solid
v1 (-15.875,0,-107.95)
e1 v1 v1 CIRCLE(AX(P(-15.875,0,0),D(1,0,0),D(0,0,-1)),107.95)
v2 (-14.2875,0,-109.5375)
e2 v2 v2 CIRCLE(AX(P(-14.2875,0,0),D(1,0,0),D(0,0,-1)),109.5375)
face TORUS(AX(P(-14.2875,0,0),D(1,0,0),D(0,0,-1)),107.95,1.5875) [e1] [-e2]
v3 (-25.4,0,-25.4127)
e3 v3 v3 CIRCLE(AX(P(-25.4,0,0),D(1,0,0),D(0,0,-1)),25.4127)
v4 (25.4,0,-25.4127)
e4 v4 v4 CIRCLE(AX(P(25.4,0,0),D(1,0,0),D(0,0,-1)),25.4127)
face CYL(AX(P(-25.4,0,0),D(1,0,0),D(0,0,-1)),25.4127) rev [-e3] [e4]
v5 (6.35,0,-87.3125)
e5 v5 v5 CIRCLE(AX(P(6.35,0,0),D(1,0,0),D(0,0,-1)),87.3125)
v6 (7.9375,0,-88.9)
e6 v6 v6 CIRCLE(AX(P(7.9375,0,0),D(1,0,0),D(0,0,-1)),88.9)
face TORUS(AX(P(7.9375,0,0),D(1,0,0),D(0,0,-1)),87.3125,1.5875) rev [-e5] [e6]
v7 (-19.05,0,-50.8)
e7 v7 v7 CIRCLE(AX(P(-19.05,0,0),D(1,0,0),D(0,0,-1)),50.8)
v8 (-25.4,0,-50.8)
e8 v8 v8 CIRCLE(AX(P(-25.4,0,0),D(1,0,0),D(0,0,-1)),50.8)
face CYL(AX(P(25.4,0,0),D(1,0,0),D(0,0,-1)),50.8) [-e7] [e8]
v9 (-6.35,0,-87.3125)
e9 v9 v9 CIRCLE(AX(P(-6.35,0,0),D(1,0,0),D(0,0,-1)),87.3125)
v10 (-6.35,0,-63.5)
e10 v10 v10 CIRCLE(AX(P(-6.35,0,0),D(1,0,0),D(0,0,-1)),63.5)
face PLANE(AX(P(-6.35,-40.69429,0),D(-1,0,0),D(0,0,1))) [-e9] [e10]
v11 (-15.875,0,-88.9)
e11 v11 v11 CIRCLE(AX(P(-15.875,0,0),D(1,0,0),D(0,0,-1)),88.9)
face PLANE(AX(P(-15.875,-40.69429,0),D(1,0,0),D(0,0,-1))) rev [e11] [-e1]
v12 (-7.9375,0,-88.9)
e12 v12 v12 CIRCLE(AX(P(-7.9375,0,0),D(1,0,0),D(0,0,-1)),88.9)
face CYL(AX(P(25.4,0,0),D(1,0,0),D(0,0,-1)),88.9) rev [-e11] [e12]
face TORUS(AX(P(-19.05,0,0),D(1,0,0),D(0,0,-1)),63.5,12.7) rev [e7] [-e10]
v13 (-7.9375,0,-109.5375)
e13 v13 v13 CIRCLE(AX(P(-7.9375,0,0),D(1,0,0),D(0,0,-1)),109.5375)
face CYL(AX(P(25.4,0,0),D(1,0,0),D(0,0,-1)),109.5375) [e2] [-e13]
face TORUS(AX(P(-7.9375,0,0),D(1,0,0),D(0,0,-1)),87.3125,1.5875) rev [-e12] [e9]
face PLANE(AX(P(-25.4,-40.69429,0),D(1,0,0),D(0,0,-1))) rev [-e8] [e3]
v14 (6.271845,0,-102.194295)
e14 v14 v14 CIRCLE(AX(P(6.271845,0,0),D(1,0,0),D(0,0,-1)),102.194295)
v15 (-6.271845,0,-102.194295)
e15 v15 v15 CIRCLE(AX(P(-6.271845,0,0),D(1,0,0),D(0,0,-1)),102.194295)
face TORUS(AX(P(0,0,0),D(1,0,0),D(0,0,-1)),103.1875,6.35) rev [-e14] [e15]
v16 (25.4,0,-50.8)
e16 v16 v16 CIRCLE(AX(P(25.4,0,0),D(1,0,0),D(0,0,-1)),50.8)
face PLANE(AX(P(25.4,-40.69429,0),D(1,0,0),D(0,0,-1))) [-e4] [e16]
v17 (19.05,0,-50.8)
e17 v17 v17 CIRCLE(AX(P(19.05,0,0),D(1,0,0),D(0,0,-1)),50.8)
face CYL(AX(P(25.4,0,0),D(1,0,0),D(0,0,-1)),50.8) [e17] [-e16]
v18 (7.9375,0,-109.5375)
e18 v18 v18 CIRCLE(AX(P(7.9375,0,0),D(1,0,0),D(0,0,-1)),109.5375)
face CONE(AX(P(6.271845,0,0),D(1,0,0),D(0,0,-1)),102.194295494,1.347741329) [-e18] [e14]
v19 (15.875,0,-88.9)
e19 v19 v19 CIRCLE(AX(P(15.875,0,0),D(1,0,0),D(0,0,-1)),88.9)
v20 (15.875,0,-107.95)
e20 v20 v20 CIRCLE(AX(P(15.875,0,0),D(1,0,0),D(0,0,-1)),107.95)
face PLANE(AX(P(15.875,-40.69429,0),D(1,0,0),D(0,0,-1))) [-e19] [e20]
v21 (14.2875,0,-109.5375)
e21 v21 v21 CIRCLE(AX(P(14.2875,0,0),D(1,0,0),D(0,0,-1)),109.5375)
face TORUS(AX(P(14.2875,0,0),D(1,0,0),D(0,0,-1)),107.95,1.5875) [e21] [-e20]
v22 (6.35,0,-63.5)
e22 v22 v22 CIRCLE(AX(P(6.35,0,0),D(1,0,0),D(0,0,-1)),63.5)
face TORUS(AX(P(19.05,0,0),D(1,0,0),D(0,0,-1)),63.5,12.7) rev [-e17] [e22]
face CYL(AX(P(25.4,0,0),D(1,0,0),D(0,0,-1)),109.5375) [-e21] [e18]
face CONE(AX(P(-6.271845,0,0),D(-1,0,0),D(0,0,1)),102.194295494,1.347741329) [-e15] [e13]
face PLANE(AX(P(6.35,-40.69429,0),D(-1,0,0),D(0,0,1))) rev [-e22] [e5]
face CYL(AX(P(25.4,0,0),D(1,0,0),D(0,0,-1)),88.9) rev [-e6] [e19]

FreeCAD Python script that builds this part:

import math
import FreeCAD as App
import Part
import Sketcher
from FreeCAD import Vector
Q = App.Units.Quantity

doc = App.newDocument("Part")
body = doc.addObject("PartDesign::Body", "Body")

sketch1 = body.newObject("Sketcher::SketchObject", "Sketch")
sketch1.AttachmentSupport = (doc.getObject("XY_Plane"), [""])
sketch1.MapMode = "FlatFace"
sketch1.addGeometry(Part.LineSegment(Vector(6.35, 63.5, 0), Vector(6.35, 87.3125, 0)), False)
sketch1.addGeometry(Part.ArcOfCircle(Part.Circle(Vector(7.9375, 87.3125, 0), Vector(0, 0, 1), 1.5875), math.radians(90), math.radians(180)), False)
sketch1.addGeometry(Part.LineSegment(Vector(7.9375, 88.9, 0), Vector(15.875, 88.9, 0)), False)
sketch1.addGeometry(Part.LineSegment(Vector(15.875, 88.9, 0), Vector(15.875, 107.95, 0)), False)
sketch1.addGeometry(Part.ArcOfCircle(Part.Circle(Vector(14.2875, 107.95, 0), Vector(0, 0, 1), 1.5875), math.radians(0), math.radians(90)), False)
sketch1.addGeometry(Part.LineSegment(Vector(14.2875, 109.5375, 0), Vector(7.9375, 109.5375, 0)), False)
sketch1.addGeometry(Part.LineSegment(Vector(7.9375, 109.5375, 0), Vector(6.271845, 102.194295, 0)), False)
sketch1.addGeometry(Part.ArcOfCircle(Part.Circle(Vector(0, 103.1875, 0), Vector(0, 0, 1), 6.35), math.radians(-171.00141), math.radians(-8.99859)), False)
sketch1.addGeometry(Part.LineSegment(Vector(-6.271845, 102.194295, 0), Vector(-7.9375, 109.5375, 0)), False)
sketch1.addGeometry(Part.LineSegment(Vector(-7.9375, 109.5375, 0), Vector(-14.2875, 109.5375, 0)), False)
sketch1.addGeometry(Part.ArcOfCircle(Part.Circle(Vector(-14.2875, 107.95, 0), Vector(0, 0, 1), 1.5875), math.radians(90), math.radians(180)), False)
sketch1.addGeometry(Part.LineSegment(Vector(-15.875, 107.95, 0), Vector(-15.875, 88.9, 0)), False)
sketch1.addGeometry(Part.LineSegment(Vector(-15.875, 88.9, 0), Vector(-7.9375, 88.9, 0)), False)
sketch1.addGeometry(Part.ArcOfCircle(Part.Circle(Vector(-7.9375, 87.3125, 0), Vector(0, 0, 1), 1.5875), math.radians(0), math.radians(90)), False)
sketch1.addGeometry(Part.LineSegment(Vector(-6.35, 87.3125, 0), Vector(-6.35, 63.5, 0)), False)
sketch1.addGeometry(Part.ArcOfCircle(Part.Circle(Vector(-19.05, 63.5, 0), Vector(0, 0, 1), 12.7), math.radians(-90), math.radians(0)), False)
sketch1.addGeometry(Part.LineSegment(Vector(-19.05, 50.8, 0), Vector(-25.4, 50.8, 0)), False)
sketch1.addGeometry(Part.LineSegment(Vector(-25.4, 50.8, 0), Vector(-25.4, 0, 0)), False)
sketch1.addGeometry(Part.LineSegment(Vector(-25.4, 0, 0), Vector(25.4, 0, 0)), False)
sketch1.addGeometry(Part.LineSegment(Vector(25.4, 0, 0), Vector(25.4, 50.8, 0)), False)
sketch1.addGeometry(Part.LineSegment(Vector(25.4, 50.8, 0), Vector(19.05, 50.8, 0)), False)
sketch1.addGeometry(Part.ArcOfCircle(Part.Circle(Vector(19.05, 63.5, 0), Vector(0, 0, 1), 12.7), math.radians(180), math.radians(270)), False)
sketch1.addConstraint(Sketcher.Constraint("Tangent", 0, 2, 1, 2))
sketch1.addConstraint(Sketcher.Constraint("Tangent", 1, 1, 2, 1))
sketch1.addConstraint(Sketcher.Constraint("Coincident", 2, 2, 3, 1))
sketch1.addConstraint(Sketcher.Constraint("Tangent", 3, 2, 4, 1))
sketch1.addConstraint(Sketcher.Constraint("Tangent", 4, 2, 5, 1))
sketch1.addConstraint(Sketcher.Constraint("Coincident", 5, 2, 6, 1))
sketch1.addConstraint(Sketcher.Constraint("Coincident", 6, 2, 7, 2))
sketch1.addConstraint(Sketcher.Constraint("Coincident", 7, 1, 8, 1))
sketch1.addConstraint(Sketcher.Constraint("Coincident", 8, 2, 9, 1))
sketch1.addConstraint(Sketcher.Constraint("Tangent", 9, 2, 10, 1))
sketch1.addConstraint(Sketcher.Constraint("Tangent", 10, 2, 11, 1))
sketch1.addConstraint(Sketcher.Constraint("Coincident", 11, 2, 12, 1))
sketch1.addConstraint(Sketcher.Constraint("Tangent", 12, 2, 13, 2))
sketch1.addConstraint(Sketcher.Constraint("Tangent", 13, 1, 14, 1))
sketch1.addConstraint(Sketcher.Constraint("Tangent", 14, 2, 15, 2))
sketch1.addConstraint(Sketcher.Constraint("Tangent", 15, 1, 16, 1))
sketch1.addConstraint(Sketcher.Constraint("Coincident", 16, 2, 17, 1))
sketch1.addConstraint(Sketcher.Constraint("Coincident", 17, 2, 18, 1))
sketch1.addConstraint(Sketcher.Constraint("Coincident", 18, 2, 19, 1))
sketch1.addConstraint(Sketcher.Constraint("Coincident", 19, 2, 20, 1))
sketch1.addConstraint(Sketcher.Constraint("Tangent", 20, 2, 21, 2))
sketch1.addConstraint(Sketcher.Constraint("Tangent", 21, 1, 0, 1))
sketch1.addConstraint(Sketcher.Constraint("Vertical", 0))
sketch1.addConstraint(Sketcher.Constraint("Horizontal", 2))
sketch1.addConstraint(Sketcher.Constraint("Vertical", 3))
sketch1.addConstraint(Sketcher.Constraint("Horizontal", 5))
sketch1.addConstraint(Sketcher.Constraint("Horizontal", 9))
sketch1.addConstraint(Sketcher.Constraint("Vertical", 11))
sketch1.addConstraint(Sketcher.Constraint("Horizontal", 12))
sketch1.addConstraint(Sketcher.Constraint("Vertical", 14))
sketch1.addConstraint(Sketcher.Constraint("Horizontal", 16))
sketch1.addConstraint(Sketcher.Constraint("Vertical", 17))
sketch1.addConstraint(Sketcher.Constraint("Horizontal", 18))
sketch1.addConstraint(Sketcher.Constraint("Vertical", 19))
sketch1.addConstraint(Sketcher.Constraint("Horizontal", 20))
sketch1.addConstraint(Sketcher.Constraint("Equal", 1, 4))
sketch1.addConstraint(Sketcher.Constraint("Equal", 4, 10))
sketch1.addConstraint(Sketcher.Constraint("Equal", 10, 13))
sketch1.addConstraint(Sketcher.Constraint("Equal", 15, 21))
sketch1.addConstraint(Sketcher.Constraint("Symmetric", 17, 2, 18, 2, -1, 1))
sketch1.addConstraint(Sketcher.Constraint("Symmetric", 4, 3, 10, 3, -2))
sketch1.addConstraint(Sketcher.Constraint("Symmetric", 1, 3, 13, 3, -2))
sketch1.addConstraint(Sketcher.Constraint("Symmetric", 6, 2, 7, 1, -2))
sketch1.addConstraint(Sketcher.Constraint("Horizontal", 15, 3, 21, 3))
sketch1.addConstraint(Sketcher.Constraint("Vertical", 1, 1, 5, 2))
sketch1.addConstraint(Sketcher.Constraint("Vertical", 13, 3, 8, 2))
sketch1.addConstraint(Sketcher.Constraint("Equal", 9, 16))
sketch1.addConstraint(Sketcher.Constraint("Equal", 18, 17))
sketch1.addConstraint(Sketcher.Constraint("Radius", 15, Q("0.5 in")))
sketch1.addConstraint(Sketcher.Constraint("DistanceX", 18, 1, 18, 2, Q("2 in")))
sketch1.addConstraint(Sketcher.Constraint("Radius", 7, Q("0.25 in")))
sketch1.addConstraint(Sketcher.Constraint("Radius", 1, Q("0.0625 in")))
sketch1.addConstraint(Sketcher.Constraint("DistanceX", 14, 2, 21, 3, Q("1 in")))
sketch1.addConstraint(Sketcher.Constraint("DistanceY", 14, 2, 12, 2, Q("1 in")))
sketch1.addConstraint(Sketcher.Constraint("DistanceY", 3, 1, 3, 2, Q("0.75 in")))
sketch1.addConstraint(Sketcher.Constraint("DistanceY", 7, 3, 4, 2, Q("0.25 in")))
sketch1.addConstraint(Sketcher.Constraint("DistanceX", 7, 1, 6, 2, 12.543691))
revolution = body.newObject("PartDesign::Revolution", "Revolution")
revolution.Profile = sketch1
revolution.ReferenceAxis = (sketch1, ["H_Axis"])
revolution.Angle = 360

sketch2 = body.newObject("Sketcher::SketchObject", "Sketch001")
sketch2.AttachmentSupport = (doc.getObject("YZ_Plane"), [""])
sketch2.MapMode = "FlatFace"
sketch2.AttachmentOffset = App.Placement(Vector(0, 0, 1 * 25.4), App.Rotation())
sketch2.addGeometry(Part.Circle(Vector(0, 0, 0), Vector(0, 0, 1), 25.4127), False)
sketch2.addConstraint(Sketcher.Constraint("Coincident", 0, 3, -1, 1))
sketch2.addConstraint(Sketcher.Constraint("Diameter", 0, Q("2.001 in")))
pocket1 = body.newObject("PartDesign::Pocket", "Pocket")
pocket1.Profile = sketch2
pocket1.Type = "ThroughAll"

doc.recompute()
